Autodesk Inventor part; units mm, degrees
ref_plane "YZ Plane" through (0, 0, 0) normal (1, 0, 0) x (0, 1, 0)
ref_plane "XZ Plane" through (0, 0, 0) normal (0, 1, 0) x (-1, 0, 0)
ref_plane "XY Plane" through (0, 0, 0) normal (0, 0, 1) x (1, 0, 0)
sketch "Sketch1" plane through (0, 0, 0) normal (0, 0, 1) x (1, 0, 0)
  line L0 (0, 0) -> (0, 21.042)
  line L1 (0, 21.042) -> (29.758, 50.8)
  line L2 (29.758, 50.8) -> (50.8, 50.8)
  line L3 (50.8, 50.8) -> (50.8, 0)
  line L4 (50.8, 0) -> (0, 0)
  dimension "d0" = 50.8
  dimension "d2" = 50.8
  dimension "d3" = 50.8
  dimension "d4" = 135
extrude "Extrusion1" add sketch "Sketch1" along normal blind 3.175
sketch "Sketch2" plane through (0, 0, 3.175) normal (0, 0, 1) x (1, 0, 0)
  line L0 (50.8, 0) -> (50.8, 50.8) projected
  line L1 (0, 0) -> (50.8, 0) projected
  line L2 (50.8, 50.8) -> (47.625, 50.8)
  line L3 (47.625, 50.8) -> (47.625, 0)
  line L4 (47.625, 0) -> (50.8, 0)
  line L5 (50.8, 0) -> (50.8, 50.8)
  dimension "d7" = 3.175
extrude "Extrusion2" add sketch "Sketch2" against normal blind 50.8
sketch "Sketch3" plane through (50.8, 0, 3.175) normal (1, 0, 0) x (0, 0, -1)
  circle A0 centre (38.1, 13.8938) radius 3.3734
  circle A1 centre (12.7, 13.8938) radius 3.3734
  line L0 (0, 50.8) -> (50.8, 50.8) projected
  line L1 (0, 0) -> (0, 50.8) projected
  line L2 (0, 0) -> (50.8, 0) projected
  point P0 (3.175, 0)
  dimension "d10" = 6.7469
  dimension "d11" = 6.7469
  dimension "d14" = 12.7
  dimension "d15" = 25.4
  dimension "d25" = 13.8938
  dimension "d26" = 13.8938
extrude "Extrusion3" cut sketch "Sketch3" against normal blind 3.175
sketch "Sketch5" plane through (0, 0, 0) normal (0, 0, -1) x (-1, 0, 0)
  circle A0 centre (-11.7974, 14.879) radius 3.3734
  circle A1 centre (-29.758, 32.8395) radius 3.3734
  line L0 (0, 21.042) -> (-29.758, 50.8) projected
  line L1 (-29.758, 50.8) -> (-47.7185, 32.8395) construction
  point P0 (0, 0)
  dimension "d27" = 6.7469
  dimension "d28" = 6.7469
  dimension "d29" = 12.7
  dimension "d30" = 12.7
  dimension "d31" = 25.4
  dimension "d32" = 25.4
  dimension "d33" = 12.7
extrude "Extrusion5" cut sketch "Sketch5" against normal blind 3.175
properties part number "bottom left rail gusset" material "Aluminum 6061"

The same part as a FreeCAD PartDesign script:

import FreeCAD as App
import Part
import Sketcher

V = App.Vector
Q = App.Units.Quantity

doc = App.newDocument("Part")
params = doc.addObject("Spreadsheet::Sheet", "Params")
for row, (alias, value) in enumerate([
    ("sketch1_width", "2 in"),
    ("pad1_length", "0.125 in"),
    ("sketch2_width", "0.125 in"),
    ("sketch2_height", "2 in"),
    ("pad2_length", "2 in"),
    ("sketch3_diameter", "0.265622 in"),
    ("pocket1_length", "0.125 in"),
    ("sketch4_diameter", "0.265622 in"),
    ("pocket2_length", "0.125 in"),
], start=1):
    params.set(f"A{row}", alias)
    params.set(f"B{row}", "=" + value)
    params.setAlias(f"B{row}", alias)

body = doc.addObject("PartDesign::Body", "Body")

sketch1 = body.newObject("Sketcher::SketchObject", "Sketch")
sketch1.AttachmentSupport = (doc.getObject("XY_Plane"), [""])
sketch1.MapMode = "FlatFace"
sketch1.addGeometry(Part.LineSegment(V(0, 21, 0), V(0, 0, 0)), False)
sketch1.addGeometry(Part.LineSegment(V(0, 0, 0), V(51, 0, 0)), False)
sketch1.addGeometry(Part.LineSegment(V(51, 0, 0), V(51, 51, 0)), False)
sketch1.addGeometry(Part.LineSegment(V(51, 51, 0), V(30, 51, 0)), False)
sketch1.addGeometry(Part.LineSegment(V(30, 51, 0), V(0, 21, 0)), False)
sketch1.addConstraint(Sketcher.Constraint("Coincident", 0, 2, 1, 1))
sketch1.addConstraint(Sketcher.Constraint("Coincident", 1, 2, 2, 1))
sketch1.addConstraint(Sketcher.Constraint("Coincident", 2, 2, 3, 1))
sketch1.addConstraint(Sketcher.Constraint("Coincident", 3, 2, 4, 1))
sketch1.addConstraint(Sketcher.Constraint("Coincident", 4, 2, 0, 1))
sketch1.addConstraint(Sketcher.Constraint("Vertical", 0))
sketch1.addConstraint(Sketcher.Constraint("Horizontal", 1))
sketch1.addConstraint(Sketcher.Constraint("Vertical", 2))
sketch1.addConstraint(Sketcher.Constraint("Horizontal", 3))
sketch1.addConstraint(Sketcher.Constraint("Coincident", 0, 2, -1, 1))
sketch1.addConstraint(Sketcher.Constraint("Equal", 3, 0))
sketch1.addConstraint(Sketcher.Constraint("Equal", 1, 2))
sketch1.addConstraint(Sketcher.Constraint("DistanceX", 1, 1, 1, 2, Q("2 in")))
sketch1.addConstraint(Sketcher.Constraint("DistanceX", 3, 2, 3, 1, Q("21.042 mm")))
sketch1.setExpression("Constraints[12]", "Params.sketch1_width")
pad1 = body.newObject("PartDesign::Pad", "Pad")
pad1.Profile = sketch1
pad1.setExpression("Length", "Params.pad1_length")

sketch2 = body.newObject("Sketcher::SketchObject", "Sketch001")
sketch2.AttachmentSupport = (doc.getObject("XY_Plane"), [""])
sketch2.MapMode = "FlatFace"
sketch2.AttachmentOffset = App.Placement(V(0, 0, 0.125 * 25.4), App.Rotation())
sketch2.addGeometry(Part.LineSegment(V(47.6, 0, 0), V(50.8, 0, 0)), False)
sketch2.addGeometry(Part.LineSegment(V(50.8, 0, 0), V(50.8, 50.8, 0)), False)
sketch2.addGeometry(Part.LineSegment(V(50.8, 50.8, 0), V(47.6, 50.8, 0)), False)
sketch2.addGeometry(Part.LineSegment(V(47.6, 50.8, 0), V(47.6, 0, 0)), False)
sketch2.addConstraint(Sketcher.Constraint("Coincident", 0, 2, 1, 1))
sketch2.addConstraint(Sketcher.Constraint("Coincident", 1, 2, 2, 1))
sketch2.addConstraint(Sketcher.Constraint("Coincident", 2, 2, 3, 1))
sketch2.addConstraint(Sketcher.Constraint("Coincident", 3, 2, 0, 1))
sketch2.addConstraint(Sketcher.Constraint("Horizontal", 0))
sketch2.addConstraint(Sketcher.Constraint("Vertical", 1))
sketch2.addConstraint(Sketcher.Constraint("Horizontal", 2))
sketch2.addConstraint(Sketcher.Constraint("Vertical", 3))
sketch2.addConstraint(Sketcher.Constraint("PointOnObject", 0, 2, -1))
sketch2.addConstraint(Sketcher.Constraint("DistanceX", 0, 1, 0, 2, Q("0.125 in")))
sketch2.addConstraint(Sketcher.Constraint("DistanceY", 1, 1, 1, 2, Q("2 in")))
sketch2.addConstraint(Sketcher.Constraint("DistanceX", -1, 1, 0, 2, Q("2 in")))
sketch2.setExpression("Constraints[9]", "Params.sketch2_width")
sketch2.setExpression("Constraints[10]", "Params.sketch2_height")
pad2 = body.newObject("PartDesign::Pad", "Pad001")
pad2.Profile = sketch2
pad2.setExpression("Length", "Params.pad2_length")
pad2.Reversed = True

sketch3 = body.newObject("Sketcher::SketchObject", "Sketch002")
sketch3.AttachmentSupport = (doc.getObject("YZ_Plane"), [""])
sketch3.MapMode = "FlatFace"
sketch3.AttachmentOffset = App.Placement(V(0, 0, 2 * 25.4), App.Rotation())
sketch3.addGeometry(Part.Circle(V(13.9, -34.9, 0), V(0, 0, 1), 3.4), False)
sketch3.addGeometry(Part.Circle(V(13.9, -9.5, 0), V(0, 0, 1), 3.4), False)
sketch3.addConstraint(Sketcher.Constraint("Equal", 0, 1))
sketch3.addConstraint(Sketcher.Constraint("Vertical", 0, 3, 1, 3))
sketch3.addConstraint(Sketcher.Constraint("Diameter", 0, Q("0.265622 in")))
sketch3.addConstraint(Sketcher.Constraint("DistanceY", 0, 3, 1, 3, Q("1 in")))
sketch3.addConstraint(Sketcher.Constraint("DistanceX", -1, 1, 0, 3, Q("0.547 in")))
sketch3.addConstraint(Sketcher.Constraint("DistanceY", 0, 3, -1, 1, Q("1.375 in")))
sketch3.setExpression("Constraints[2]", "Params.sketch3_diameter")
pocket1 = body.newObject("PartDesign::Pocket", "Pocket")
pocket1.Profile = sketch3
pocket1.setExpression("Length", "Params.pocket1_length")

sketch4 = body.newObject("Sketcher::SketchObject", "Sketch003")
sketch4.AttachmentSupport = (doc.getObject("XY_Plane"), [""])
sketch4.MapMode = "FlatFace"
sketch4.addGeometry(Part.Circle(V(11.8, 14.9, 0), V(0, 0, 1), 3.4), False)
sketch4.addGeometry(Part.Circle(V(29.8, 32.8, 0), V(0, 0, 1), 3.4), False)
sketch4.addConstraint(Sketcher.Constraint("Equal", 0, 1))
sketch4.addConstraint(Sketcher.Constraint("Diameter", 0, Q("0.265622 in")))
sketch4.addConstraint(Sketcher.Constraint("DistanceY", -1, 1, 1, 3, Q("1.2929 in")))
sketch4.addConstraint(Sketcher.Constraint("DistanceX", 0, 3, 1, 3, Q("0.7071 in")))
sketch4.addConstraint(Sketcher.Constraint("DistanceY", 0, 3, 1, 3, Q("0.7071 in")))
sketch4.addConstraint(Sketcher.Constraint("DistanceX", -1, 1, 0, 3, Q("11.7974 mm")))
sketch4.setExpression("Constraints[1]", "Params.sketch4_diameter")
pocket2 = body.newObject("PartDesign::Pocket", "Pocket001")
pocket2.Profile = sketch4
pocket2.setExpression("Length", "Params.pocket2_length")
pocket2.Reversed = True

doc.recompute()
